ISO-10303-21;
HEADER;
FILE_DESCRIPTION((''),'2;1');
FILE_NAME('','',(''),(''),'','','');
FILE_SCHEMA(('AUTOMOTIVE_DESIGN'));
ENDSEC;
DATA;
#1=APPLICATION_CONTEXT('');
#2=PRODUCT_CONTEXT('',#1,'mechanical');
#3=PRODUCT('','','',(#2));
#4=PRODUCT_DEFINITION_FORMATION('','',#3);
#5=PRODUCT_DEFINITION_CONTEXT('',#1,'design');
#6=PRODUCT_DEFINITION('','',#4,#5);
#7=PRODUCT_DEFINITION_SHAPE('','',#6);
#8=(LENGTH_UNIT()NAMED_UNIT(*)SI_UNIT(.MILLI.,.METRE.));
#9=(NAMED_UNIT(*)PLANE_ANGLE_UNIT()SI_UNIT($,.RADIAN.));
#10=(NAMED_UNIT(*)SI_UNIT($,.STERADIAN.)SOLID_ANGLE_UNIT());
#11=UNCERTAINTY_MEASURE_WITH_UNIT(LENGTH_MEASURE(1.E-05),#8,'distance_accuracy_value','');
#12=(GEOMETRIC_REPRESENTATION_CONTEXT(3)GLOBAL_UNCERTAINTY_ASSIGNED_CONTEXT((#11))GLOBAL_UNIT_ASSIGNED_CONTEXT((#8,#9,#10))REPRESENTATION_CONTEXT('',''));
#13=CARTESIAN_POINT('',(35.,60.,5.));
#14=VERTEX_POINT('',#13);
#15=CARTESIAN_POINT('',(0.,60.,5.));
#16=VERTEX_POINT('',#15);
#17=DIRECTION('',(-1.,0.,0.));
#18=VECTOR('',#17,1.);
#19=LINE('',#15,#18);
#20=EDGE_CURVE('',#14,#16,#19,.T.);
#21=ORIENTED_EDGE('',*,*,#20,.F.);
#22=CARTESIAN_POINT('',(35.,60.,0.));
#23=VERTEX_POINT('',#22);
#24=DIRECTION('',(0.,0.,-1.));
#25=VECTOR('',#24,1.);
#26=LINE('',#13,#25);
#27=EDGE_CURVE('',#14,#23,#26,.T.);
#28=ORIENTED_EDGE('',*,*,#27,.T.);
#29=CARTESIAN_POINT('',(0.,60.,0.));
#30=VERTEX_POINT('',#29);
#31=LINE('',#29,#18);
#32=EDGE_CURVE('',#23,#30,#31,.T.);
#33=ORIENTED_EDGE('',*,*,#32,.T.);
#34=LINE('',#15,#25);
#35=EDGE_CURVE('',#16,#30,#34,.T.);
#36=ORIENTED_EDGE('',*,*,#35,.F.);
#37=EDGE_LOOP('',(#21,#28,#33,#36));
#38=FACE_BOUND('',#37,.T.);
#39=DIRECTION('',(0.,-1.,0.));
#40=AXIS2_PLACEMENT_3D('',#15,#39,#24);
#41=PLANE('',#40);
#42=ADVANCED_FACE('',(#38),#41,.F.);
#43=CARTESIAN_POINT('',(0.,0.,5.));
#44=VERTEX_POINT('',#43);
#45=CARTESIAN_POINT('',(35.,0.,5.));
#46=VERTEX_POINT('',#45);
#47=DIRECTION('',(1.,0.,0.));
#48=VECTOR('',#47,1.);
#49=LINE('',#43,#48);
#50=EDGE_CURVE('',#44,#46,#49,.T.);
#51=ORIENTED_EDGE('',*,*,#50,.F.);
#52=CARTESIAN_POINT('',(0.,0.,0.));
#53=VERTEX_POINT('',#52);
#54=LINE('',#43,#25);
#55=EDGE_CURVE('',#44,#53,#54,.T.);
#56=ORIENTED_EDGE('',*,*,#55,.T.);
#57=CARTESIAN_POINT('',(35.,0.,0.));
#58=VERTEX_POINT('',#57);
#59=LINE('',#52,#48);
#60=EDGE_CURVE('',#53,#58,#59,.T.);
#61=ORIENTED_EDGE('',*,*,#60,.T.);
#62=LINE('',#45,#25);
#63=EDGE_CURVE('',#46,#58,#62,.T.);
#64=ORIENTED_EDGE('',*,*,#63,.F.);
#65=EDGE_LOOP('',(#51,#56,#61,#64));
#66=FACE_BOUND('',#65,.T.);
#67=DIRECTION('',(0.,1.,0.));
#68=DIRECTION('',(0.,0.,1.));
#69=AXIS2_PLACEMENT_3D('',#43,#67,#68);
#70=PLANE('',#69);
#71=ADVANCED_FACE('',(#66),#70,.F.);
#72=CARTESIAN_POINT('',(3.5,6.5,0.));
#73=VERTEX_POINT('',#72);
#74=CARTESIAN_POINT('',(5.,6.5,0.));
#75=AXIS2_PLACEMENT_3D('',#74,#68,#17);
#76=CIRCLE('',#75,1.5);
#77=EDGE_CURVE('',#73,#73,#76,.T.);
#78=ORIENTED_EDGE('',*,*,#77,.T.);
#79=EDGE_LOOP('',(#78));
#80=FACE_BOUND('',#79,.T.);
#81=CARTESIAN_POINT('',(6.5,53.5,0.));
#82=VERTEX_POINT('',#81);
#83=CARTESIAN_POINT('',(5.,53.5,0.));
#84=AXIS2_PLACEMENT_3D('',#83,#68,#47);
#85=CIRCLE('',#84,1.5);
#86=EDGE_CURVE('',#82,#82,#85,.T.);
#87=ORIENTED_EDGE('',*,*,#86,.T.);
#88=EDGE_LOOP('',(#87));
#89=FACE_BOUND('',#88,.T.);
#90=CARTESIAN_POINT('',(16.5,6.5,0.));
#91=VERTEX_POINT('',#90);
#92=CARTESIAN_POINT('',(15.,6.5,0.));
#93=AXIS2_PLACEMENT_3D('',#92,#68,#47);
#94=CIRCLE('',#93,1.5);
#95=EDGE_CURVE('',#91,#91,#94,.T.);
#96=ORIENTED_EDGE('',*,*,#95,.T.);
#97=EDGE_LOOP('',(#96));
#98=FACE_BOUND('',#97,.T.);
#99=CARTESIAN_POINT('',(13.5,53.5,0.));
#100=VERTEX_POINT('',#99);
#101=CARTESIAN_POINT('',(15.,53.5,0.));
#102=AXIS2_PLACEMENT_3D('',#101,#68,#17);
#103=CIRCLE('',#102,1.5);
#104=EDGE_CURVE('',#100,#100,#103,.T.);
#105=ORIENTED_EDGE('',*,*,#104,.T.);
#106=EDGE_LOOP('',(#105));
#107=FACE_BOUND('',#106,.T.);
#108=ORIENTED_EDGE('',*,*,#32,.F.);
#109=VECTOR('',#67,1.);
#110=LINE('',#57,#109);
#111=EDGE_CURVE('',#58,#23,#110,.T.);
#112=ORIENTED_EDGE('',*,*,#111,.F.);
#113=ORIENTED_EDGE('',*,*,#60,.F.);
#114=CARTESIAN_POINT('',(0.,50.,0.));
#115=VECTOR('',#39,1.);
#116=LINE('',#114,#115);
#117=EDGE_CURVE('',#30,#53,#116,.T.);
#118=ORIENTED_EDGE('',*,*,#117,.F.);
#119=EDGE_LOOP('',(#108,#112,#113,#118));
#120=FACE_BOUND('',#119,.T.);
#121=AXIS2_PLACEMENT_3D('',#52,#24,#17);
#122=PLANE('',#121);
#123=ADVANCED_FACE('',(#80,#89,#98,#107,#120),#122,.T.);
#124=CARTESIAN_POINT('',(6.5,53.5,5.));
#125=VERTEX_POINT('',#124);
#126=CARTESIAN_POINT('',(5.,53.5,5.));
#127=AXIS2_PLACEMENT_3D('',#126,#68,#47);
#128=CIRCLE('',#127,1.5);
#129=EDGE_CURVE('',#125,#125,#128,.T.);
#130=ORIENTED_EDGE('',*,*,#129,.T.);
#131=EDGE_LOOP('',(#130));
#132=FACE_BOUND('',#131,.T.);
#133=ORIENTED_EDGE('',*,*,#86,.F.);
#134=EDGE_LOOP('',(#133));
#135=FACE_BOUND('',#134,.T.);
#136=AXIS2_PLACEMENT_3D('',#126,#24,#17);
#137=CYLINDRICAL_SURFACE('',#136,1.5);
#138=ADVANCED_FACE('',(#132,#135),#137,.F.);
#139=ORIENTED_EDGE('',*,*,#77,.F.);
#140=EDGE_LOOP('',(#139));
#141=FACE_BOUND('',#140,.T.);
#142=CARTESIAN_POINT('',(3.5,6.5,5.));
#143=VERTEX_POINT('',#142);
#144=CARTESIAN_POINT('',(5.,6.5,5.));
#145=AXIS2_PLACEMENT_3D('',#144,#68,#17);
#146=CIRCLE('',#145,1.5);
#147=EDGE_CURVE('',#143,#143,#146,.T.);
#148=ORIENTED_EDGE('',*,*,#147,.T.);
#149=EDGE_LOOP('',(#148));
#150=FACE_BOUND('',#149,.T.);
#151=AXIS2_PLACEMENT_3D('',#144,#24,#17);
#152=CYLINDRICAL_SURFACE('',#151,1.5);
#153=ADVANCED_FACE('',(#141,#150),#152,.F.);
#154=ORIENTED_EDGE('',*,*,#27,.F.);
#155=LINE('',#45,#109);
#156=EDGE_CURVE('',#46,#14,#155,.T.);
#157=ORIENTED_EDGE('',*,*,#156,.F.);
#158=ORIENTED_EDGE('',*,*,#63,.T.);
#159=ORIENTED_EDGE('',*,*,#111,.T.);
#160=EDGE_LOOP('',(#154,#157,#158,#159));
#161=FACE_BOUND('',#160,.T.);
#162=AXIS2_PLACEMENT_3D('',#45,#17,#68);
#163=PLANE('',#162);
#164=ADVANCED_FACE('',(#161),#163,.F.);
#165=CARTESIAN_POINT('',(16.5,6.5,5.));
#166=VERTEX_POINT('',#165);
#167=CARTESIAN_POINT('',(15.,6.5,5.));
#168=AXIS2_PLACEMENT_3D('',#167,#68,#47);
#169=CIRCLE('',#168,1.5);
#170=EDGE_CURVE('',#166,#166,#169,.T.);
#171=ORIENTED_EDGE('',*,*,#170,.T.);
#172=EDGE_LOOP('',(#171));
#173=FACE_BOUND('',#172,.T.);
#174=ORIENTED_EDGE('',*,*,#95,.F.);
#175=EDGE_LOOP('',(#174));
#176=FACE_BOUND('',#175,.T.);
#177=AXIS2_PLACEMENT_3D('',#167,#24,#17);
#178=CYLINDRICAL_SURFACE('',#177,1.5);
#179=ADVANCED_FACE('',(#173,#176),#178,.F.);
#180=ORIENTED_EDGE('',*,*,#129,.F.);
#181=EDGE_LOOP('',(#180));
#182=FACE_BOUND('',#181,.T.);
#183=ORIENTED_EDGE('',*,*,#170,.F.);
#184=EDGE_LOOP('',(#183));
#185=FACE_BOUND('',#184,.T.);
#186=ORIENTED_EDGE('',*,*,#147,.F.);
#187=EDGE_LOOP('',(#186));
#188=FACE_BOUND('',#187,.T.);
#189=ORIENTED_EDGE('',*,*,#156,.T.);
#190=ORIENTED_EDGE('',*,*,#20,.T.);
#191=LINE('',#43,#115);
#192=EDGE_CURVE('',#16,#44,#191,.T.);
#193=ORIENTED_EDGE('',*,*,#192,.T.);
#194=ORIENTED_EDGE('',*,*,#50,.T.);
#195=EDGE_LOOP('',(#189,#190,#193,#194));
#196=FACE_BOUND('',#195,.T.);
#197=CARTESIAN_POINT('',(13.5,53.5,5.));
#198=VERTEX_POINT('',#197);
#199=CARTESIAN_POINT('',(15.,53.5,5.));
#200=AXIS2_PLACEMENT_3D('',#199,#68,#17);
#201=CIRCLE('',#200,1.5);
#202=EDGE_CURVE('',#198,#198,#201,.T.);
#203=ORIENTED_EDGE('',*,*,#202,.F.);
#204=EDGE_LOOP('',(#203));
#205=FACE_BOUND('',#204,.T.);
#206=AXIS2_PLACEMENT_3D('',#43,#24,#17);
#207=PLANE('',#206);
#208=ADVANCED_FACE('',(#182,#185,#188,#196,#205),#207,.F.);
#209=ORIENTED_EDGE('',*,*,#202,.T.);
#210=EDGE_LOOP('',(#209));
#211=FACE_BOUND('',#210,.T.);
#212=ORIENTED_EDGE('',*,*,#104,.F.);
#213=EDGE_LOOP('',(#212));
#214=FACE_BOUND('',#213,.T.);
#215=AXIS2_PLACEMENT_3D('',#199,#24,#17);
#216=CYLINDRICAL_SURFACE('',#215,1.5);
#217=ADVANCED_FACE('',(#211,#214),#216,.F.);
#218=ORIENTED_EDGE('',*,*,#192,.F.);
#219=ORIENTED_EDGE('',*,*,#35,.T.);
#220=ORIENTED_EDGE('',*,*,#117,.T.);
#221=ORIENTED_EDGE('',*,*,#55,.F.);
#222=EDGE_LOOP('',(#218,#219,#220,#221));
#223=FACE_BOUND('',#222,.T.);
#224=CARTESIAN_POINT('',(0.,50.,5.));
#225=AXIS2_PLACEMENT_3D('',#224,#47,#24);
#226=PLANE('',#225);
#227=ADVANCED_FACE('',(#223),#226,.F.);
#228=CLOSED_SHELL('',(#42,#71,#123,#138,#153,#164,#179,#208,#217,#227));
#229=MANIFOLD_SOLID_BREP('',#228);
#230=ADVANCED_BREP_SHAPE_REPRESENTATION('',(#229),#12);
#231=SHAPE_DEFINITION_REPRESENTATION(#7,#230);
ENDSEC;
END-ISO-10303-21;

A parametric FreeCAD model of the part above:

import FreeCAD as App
import Part
import Sketcher

V = App.Vector
Q = App.Units.Quantity

doc = App.newDocument("Part")
body = doc.addObject("PartDesign::Body", "Body")

sketch1 = doc.addObject("Sketcher::SketchObject", "Sketch")
body.addObject(sketch1)
sketch1.AttachmentSupport = (doc.XY_Plane, [""])
sketch1.MapMode = "FlatFace"
sketch1.addGeometry(Part.LineSegment(V(0, 0, 0), V(35, 0, 0)), False)
sketch1.addGeometry(Part.LineSegment(V(35, 0, 0), V(35, 60, 0)), False)
sketch1.addGeometry(Part.LineSegment(V(35, 60, 0), V(0, 60, 0)), False)
sketch1.addGeometry(Part.LineSegment(V(0, 60, 0), V(0, 0, 0)), False)
sketch1.addGeometry(Part.Circle(V(5, 6.5, 0), V(0, 0, 1), 1.5), False)
sketch1.addGeometry(Part.Circle(V(15, 6.5, 0), V(0, 0, 1), 1.5), False)
sketch1.addGeometry(Part.Circle(V(5, 53.5, 0), V(0, 0, 1), 1.5), False)
sketch1.addGeometry(Part.Circle(V(15, 53.5, 0), V(0, 0, 1), 1.5), False)
sketch1.addConstraint(Sketcher.Constraint("Coincident", 0, 2, 1, 1))
sketch1.addConstraint(Sketcher.Constraint("Coincident", 1, 2, 2, 1))
sketch1.addConstraint(Sketcher.Constraint("Coincident", 2, 2, 3, 1))
sketch1.addConstraint(Sketcher.Constraint("Coincident", 3, 2, 0, 1))
sketch1.addConstraint(Sketcher.Constraint("Horizontal", 0))
sketch1.addConstraint(Sketcher.Constraint("Vertical", 1))
sketch1.addConstraint(Sketcher.Constraint("Horizontal", 2))
sketch1.addConstraint(Sketcher.Constraint("Vertical", 3))
sketch1.addConstraint(Sketcher.Constraint("Coincident", 3, 2, -1, 1))
sketch1.addConstraint(Sketcher.Constraint("Equal", 4, 5))
sketch1.addConstraint(Sketcher.Constraint("Equal", 5, 6))
sketch1.addConstraint(Sketcher.Constraint("Equal", 6, 7))
sketch1.addConstraint(Sketcher.Constraint("Horizontal", 4, 3, 5, 3))
sketch1.addConstraint(Sketcher.Constraint("Horizontal", 6, 3, 7, 3))
sketch1.addConstraint(Sketcher.Constraint("Vertical", 4, 3, 6, 3))
sketch1.addConstraint(Sketcher.Constraint("Vertical", 5, 3, 7, 3))
sketch1.addConstraint(Sketcher.Constraint("Diameter", 4, Q("3 mm")))
sketch1.addConstraint(Sketcher.Constraint("DistanceX", 0, 1, 0, 2, Q("35 mm")))
sketch1.addConstraint(Sketcher.Constraint("DistanceY", 1, 1, 1, 2, Q("60 mm")))
sketch1.addConstraint(Sketcher.Constraint("DistanceX", -1, 1, 4, 3, Q("5 mm")))
sketch1.addConstraint(Sketcher.Constraint("DistanceX", -1, 1, 5, 3, Q("15 mm")))
sketch1.addConstraint(Sketcher.Constraint("DistanceY", 4, 3, 6, 3, Q("47 mm")))
sketch1.addConstraint(Sketcher.Constraint("DistanceY", -1, 1, 4, 3, Q("6.5 mm")))
pad1 = doc.addObject("PartDesign::Pad", "Pad")
body.addObject(pad1)
pad1.Profile = sketch1
pad1.Length = 5

doc.recompute()
